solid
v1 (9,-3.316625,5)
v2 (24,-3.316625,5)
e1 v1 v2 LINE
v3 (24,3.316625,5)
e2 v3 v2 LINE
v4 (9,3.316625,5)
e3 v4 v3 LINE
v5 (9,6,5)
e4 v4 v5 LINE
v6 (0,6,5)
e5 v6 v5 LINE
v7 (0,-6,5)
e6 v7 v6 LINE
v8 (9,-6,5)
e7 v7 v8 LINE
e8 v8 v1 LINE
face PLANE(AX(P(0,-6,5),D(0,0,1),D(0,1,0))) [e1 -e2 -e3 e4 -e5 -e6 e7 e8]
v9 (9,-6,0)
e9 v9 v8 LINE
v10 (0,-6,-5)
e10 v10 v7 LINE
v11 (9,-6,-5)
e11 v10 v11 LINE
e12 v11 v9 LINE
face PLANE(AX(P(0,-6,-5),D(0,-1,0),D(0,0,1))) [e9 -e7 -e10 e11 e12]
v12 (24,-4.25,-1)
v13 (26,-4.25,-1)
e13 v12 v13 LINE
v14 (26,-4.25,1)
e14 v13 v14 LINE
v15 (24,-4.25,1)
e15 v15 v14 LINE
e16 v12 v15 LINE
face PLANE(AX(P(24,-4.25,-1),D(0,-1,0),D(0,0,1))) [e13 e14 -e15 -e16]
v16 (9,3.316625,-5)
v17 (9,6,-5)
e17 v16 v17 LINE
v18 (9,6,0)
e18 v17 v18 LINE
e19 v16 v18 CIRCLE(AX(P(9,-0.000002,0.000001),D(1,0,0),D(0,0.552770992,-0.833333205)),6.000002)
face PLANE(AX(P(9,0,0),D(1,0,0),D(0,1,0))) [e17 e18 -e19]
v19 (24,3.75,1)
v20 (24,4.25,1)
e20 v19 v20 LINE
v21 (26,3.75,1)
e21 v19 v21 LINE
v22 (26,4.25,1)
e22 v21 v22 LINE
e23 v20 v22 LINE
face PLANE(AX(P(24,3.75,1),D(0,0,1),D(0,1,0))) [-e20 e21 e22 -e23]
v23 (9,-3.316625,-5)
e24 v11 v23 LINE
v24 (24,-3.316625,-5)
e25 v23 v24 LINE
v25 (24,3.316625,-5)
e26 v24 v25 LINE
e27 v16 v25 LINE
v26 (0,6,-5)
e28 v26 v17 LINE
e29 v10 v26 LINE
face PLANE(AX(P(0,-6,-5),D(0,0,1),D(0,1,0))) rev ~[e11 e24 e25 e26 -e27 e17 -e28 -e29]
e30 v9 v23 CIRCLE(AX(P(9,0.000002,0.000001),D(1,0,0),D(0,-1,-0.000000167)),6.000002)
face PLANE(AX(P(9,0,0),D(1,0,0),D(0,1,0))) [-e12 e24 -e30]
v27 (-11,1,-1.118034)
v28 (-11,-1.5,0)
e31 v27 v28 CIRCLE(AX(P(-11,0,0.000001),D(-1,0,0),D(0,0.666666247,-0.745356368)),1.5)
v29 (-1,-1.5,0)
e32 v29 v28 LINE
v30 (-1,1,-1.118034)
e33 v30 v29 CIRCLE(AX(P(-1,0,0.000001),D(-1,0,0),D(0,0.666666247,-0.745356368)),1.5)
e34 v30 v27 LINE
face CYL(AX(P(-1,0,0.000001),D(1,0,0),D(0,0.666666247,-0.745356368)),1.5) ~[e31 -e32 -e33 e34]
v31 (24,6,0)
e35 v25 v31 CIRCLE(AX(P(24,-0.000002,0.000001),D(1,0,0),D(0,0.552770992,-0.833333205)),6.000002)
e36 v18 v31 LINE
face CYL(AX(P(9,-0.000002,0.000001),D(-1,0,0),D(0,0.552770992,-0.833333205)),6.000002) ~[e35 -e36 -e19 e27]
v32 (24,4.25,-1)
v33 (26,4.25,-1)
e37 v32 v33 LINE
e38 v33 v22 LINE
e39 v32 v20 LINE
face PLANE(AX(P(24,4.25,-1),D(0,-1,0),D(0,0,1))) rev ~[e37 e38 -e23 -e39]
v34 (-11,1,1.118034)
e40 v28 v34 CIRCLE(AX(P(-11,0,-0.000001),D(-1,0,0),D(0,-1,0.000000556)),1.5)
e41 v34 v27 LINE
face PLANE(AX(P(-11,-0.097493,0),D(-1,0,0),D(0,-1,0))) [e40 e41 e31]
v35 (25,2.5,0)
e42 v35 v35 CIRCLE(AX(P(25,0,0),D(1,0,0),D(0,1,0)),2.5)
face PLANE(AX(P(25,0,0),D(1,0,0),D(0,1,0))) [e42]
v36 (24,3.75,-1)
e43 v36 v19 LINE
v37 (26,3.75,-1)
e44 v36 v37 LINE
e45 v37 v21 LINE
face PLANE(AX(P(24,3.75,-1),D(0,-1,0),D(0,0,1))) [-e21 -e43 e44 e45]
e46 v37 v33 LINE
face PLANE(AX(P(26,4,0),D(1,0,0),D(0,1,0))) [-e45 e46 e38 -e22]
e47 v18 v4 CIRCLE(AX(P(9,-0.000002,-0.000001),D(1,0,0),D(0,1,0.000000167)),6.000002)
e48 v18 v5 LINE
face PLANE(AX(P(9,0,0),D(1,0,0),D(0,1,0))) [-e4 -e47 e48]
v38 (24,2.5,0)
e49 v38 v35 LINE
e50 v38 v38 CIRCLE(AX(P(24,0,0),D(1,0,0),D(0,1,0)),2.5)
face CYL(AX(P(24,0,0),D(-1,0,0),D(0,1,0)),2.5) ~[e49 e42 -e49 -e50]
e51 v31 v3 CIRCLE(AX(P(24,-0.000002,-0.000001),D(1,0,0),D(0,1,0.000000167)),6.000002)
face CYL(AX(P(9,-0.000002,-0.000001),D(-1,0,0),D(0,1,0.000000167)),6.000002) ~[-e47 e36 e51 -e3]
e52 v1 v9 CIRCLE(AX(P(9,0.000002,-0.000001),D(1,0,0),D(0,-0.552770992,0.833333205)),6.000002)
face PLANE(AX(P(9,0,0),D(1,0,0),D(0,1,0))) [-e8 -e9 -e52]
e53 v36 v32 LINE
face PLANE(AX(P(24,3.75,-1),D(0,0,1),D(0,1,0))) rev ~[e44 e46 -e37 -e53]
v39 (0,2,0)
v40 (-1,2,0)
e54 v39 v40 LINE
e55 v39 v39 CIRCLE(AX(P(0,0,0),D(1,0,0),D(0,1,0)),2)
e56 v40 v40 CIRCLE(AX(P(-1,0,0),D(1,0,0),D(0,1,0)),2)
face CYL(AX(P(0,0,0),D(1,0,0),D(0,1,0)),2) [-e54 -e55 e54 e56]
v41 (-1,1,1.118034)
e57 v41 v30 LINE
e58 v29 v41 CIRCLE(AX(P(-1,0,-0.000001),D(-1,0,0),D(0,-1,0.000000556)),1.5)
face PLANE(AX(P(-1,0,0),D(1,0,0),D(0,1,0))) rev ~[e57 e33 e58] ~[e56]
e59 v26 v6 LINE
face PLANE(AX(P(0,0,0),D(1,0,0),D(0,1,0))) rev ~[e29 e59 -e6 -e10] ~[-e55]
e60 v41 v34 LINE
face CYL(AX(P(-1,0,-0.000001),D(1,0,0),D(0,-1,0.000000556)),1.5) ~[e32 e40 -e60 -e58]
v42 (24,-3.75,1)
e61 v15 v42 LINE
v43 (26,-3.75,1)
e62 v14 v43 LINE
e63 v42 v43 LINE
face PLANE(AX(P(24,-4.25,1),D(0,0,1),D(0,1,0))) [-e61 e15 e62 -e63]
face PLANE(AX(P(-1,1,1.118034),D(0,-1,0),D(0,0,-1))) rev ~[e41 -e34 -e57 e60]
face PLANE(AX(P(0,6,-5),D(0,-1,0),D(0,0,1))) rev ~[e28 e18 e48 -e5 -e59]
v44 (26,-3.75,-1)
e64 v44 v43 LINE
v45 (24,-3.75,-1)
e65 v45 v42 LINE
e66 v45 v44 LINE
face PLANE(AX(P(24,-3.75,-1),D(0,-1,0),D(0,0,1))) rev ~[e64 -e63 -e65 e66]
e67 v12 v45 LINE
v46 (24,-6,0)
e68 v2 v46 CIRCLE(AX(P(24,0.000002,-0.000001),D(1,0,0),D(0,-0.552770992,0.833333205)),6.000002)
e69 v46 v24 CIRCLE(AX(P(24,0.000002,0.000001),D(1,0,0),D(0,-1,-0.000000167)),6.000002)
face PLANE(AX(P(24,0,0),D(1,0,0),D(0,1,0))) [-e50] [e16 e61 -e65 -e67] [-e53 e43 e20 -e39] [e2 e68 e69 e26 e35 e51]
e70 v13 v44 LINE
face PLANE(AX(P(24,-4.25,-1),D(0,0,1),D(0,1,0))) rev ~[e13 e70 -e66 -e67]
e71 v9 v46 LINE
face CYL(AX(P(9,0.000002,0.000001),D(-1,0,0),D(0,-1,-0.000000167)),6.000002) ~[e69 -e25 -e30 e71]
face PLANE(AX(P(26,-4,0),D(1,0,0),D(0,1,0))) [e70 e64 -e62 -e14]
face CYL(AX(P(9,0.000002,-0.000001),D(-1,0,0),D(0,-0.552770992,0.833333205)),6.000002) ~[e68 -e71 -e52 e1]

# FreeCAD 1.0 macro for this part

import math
import FreeCAD as App
import Part
import Sketcher
Q = App.Units.Quantity


def add_polygon(sketch, points):
    """Adds a closed chain of lines whose ends are joined by coincident constraints."""
    first, n = sketch.GeometryCount, len(points)
    for a, b in zip(points, points[1:] + points[:1]):
        sketch.addGeometry(Part.LineSegment(App.Vector(*a, 0), App.Vector(*b, 0)), False)
    for i in range(n):
        sketch.addConstraint(Sketcher.Constraint("Coincident", first + i, 2, first + (i + 1) % n, 1))

doc = App.newDocument("Part")
params = doc.addObject("Spreadsheet::Sheet", "Params")
for row, (alias, value) in enumerate([
    ("sketch1_width", "12 mm"),
    ("sketch1_height", "10 mm"),
    ("pad1_length", "9 mm"),
    ("sketch2_diameter", "4 mm"),
    ("pad2_length", "1 mm"),
    ("sketch3_radius", "1.5 mm"),
    ("pad3_length", "10 mm"),
    ("pad4_length", "15 mm"),
    ("sketch5_diameter", "5 mm"),
    ("pad5_length", "1 mm"),
    ("sketch6_height", "2 mm"),
    ("sketch6_width", "0.5 mm"),
    ("pad6_length", "2 mm"),
], start=1):
    params.set(f"A{row}", alias)
    params.set(f"B{row}", "=" + value)
    params.setAlias(f"B{row}", alias)

body = doc.addObject("PartDesign::Body", "Body")

# Sketch on YZ plane
sketch1 = doc.addObject("Sketcher::SketchObject", "Sketch")
body.addObject(sketch1)
sketch1.AttachmentSupport = (doc.YZ_Plane, [""])
sketch1.MapMode = "FlatFace"
add_polygon(sketch1, [(-6, 5), (-6, -5), (6, -5), (6, 5)])  # lines 0-3
sketch1.addConstraint([
    Sketcher.Constraint("Vertical", 0),
    Sketcher.Constraint("Horizontal", 1),
    Sketcher.Constraint("Vertical", 2),
    Sketcher.Constraint("Horizontal", 3),
    Sketcher.Constraint("Symmetric", 0, 2, 2, 2, -1, 1),
    Sketcher.Constraint("DistanceX", 1, 1, 1, 2, Q("12 mm")),
    Sketcher.Constraint("DistanceY", 0, 2, 0, 1, Q("10 mm")),
])
sketch1.setExpression("Constraints[9]", "Params.sketch1_width")
sketch1.setExpression("Constraints[10]", "Params.sketch1_height")
pad1 = doc.addObject("PartDesign::Pad", "Pad")
body.addObject(pad1)
pad1.Profile = sketch1
pad1.setExpression("Length", "Params.pad1_length")

# Sketch on YZ plane
sketch2 = doc.addObject("Sketcher::SketchObject", "Sketch001")
body.addObject(sketch2)
sketch2.AttachmentSupport = (doc.YZ_Plane, [""])
sketch2.MapMode = "FlatFace"
sketch2.addGeometry(Part.Circle(App.Vector(0, 0, 0), App.Vector(0, 0, 1), 2), False)
sketch2.addConstraint([
    Sketcher.Constraint("Coincident", 0, 3, -1, 1),
    Sketcher.Constraint("Diameter", 0, Q("4 mm")),
])
sketch2.setExpression("Constraints[1]", "Params.sketch2_diameter")
pad2 = doc.addObject("PartDesign::Pad", "Pad001")
body.addObject(pad2)
pad2.Profile = sketch2
pad2.setExpression("Length", "Params.pad2_length")
pad2.Reversed = True

# Sketch on YZ plane
sketch3 = doc.addObject("Sketcher::SketchObject", "Sketch002")
body.addObject(sketch3)
sketch3.AttachmentSupport = (doc.YZ_Plane, [""])
sketch3.MapMode = "FlatFace"
sketch3.AttachmentOffset = App.Placement(App.Vector(0, 0, -1), App.Rotation())
sketch3.addGeometry([
    Part.ArcOfCircle(Part.Circle(App.Vector(0, 0.000001, 0), App.Vector(0, 0, 1), 1.5), math.radians(-179.999968), math.radians(-48.189717)),
    Part.ArcOfCircle(Part.Circle(App.Vector(0, -0.000001, 0), App.Vector(0, 0, 1), 1.5), math.radians(48.189717), math.radians(179.999968)),
    Part.LineSegment(App.Vector(1, 1.118034, 0), App.Vector(1, -1.118034, 0)),
], False)
sketch3.addConstraint([
    Sketcher.Constraint("Tangent", 0, 1, 1, 2),
    Sketcher.Constraint("Coincident", 1, 1, 2, 1),
    Sketcher.Constraint("Coincident", 2, 2, 0, 2),
    Sketcher.Constraint("Vertical", 2),
    Sketcher.Constraint("Coincident", 0, 3, -1, 1),
    Sketcher.Constraint("Equal", 0, 1),
    Sketcher.Constraint("PointOnObject", 0, 1, -1),
    Sketcher.Constraint("Radius", 0, Q("1.5 mm")),
    Sketcher.Constraint("DistanceX", -1, 1, 1, 1, Q("1 mm")),
])
sketch3.setExpression("Constraints[7]", "Params.sketch3_radius")
pad3 = doc.addObject("PartDesign::Pad", "Pad002")
body.addObject(pad3)
pad3.Profile = sketch3
pad3.setExpression("Length", "Params.pad3_length")
pad3.Reversed = True

# Sketch on YZ plane
sketch4 = doc.addObject("Sketcher::SketchObject", "Sketch003")
body.addObject(sketch4)
sketch4.AttachmentSupport = (doc.YZ_Plane, [""])
sketch4.MapMode = "FlatFace"
sketch4.AttachmentOffset = App.Placement(App.Vector(0, 0, 9), App.Rotation())
sketch4.addGeometry([
    Part.LineSegment(App.Vector(3.316625, 5, 0), App.Vector(-3.316625, 5, 0)),  # 0
    Part.ArcOfCircle(Part.Circle(App.Vector(0.000002, -0.000001, 0), App.Vector(0, 0, 1), 6.000002), math.radians(123.557323), math.radians(179.99999)),  # 1
    Part.ArcOfCircle(Part.Circle(App.Vector(0.000002, 0.000001, 0), App.Vector(0, 0, 1), 6.000002), math.radians(-179.99999), math.radians(-123.557323)),  # 2
    Part.LineSegment(App.Vector(-3.316625, -5, 0), App.Vector(3.316625, -5, 0)),  # 3
    Part.ArcOfCircle(Part.Circle(App.Vector(-0.000002, 0.000001, 0), App.Vector(0, 0, 1), 6.000002), math.radians(-56.442677), math.radians(-0.00001)),  # 4
    Part.ArcOfCircle(Part.Circle(App.Vector(-0.000002, -0.000001, 0), App.Vector(0, 0, 1), 6.000002), math.radians(0.00001), math.radians(56.442677)),  # 5
], False)
sketch4.addConstraint([
    Sketcher.Constraint("Coincident", 0, 2, 1, 1),
    Sketcher.Constraint("Tangent", 1, 2, 2, 1),
    Sketcher.Constraint("Coincident", 2, 2, 3, 1),
    Sketcher.Constraint("Coincident", 3, 2, 4, 1),
    Sketcher.Constraint("Tangent", 4, 2, 5, 1),
    Sketcher.Constraint("Coincident", 5, 2, 0, 1),
    Sketcher.Constraint("Horizontal", 0),
    Sketcher.Constraint("Horizontal", 3),
    Sketcher.Constraint("Coincident", 1, 3, -1, 1),
    Sketcher.Constraint("Coincident", 4, 3, -1, 1),
    Sketcher.Constraint("Equal", 1, 2),
    Sketcher.Constraint("Equal", 2, 4),
    Sketcher.Constraint("Equal", 4, 5),
    Sketcher.Constraint("PointOnObject", 1, 2, -1),
    Sketcher.Constraint("PointOnObject", 4, 2, -1),
    Sketcher.Constraint("Vertical", 0, 2, 2, 2),
    Sketcher.Constraint("DistanceY", -1, 1, 0, 2, Q("5 mm")),
    Sketcher.Constraint("DistanceX", 1, 2, -1, 1, Q("6 mm")),
])
pad4 = doc.addObject("PartDesign::Pad", "Pad003")
body.addObject(pad4)
pad4.Profile = sketch4
pad4.setExpression("Length", "Params.pad4_length")

# Sketch on YZ plane
sketch5 = doc.addObject("Sketcher::SketchObject", "Sketch004")
body.addObject(sketch5)
sketch5.AttachmentSupport = (doc.YZ_Plane, [""])
sketch5.MapMode = "FlatFace"
sketch5.AttachmentOffset = App.Placement(App.Vector(0, 0, 24), App.Rotation())
sketch5.addGeometry(Part.Circle(App.Vector(0, 0, 0), App.Vector(0, 0, 1), 2.5), False)
sketch5.addConstraint([
    Sketcher.Constraint("Coincident", 0, 3, -1, 1),
    Sketcher.Constraint("Diameter", 0, Q("5 mm")),
])
sketch5.setExpression("Constraints[1]", "Params.sketch5_diameter")
pad5 = doc.addObject("PartDesign::Pad", "Pad004")
body.addObject(pad5)
pad5.Profile = sketch5
pad5.setExpression("Length", "Params.pad5_length")

# Sketch on YZ plane
sketch6 = doc.addObject("Sketcher::SketchObject", "Sketch005")
body.addObject(sketch6)
sketch6.AttachmentSupport = (doc.YZ_Plane, [""])
sketch6.MapMode = "FlatFace"
sketch6.AttachmentOffset = App.Placement(App.Vector(0, 0, 24), App.Rotation())
add_polygon(sketch6, [(-4.25, 1), (-4.25, -1), (-3.75, -1), (-3.75, 1)])  # lines 0-3
add_polygon(sketch6, [(3.75, 1), (3.75, -1), (4.25, -1), (4.25, 1)])  # lines 4-7
sketch6.addConstraint([
    Sketcher.Constraint("Vertical", 0),
    Sketcher.Constraint("Horizontal", 1),
    Sketcher.Constraint("Vertical", 2),
    Sketcher.Constraint("Horizontal", 3),
    Sketcher.Constraint("Vertical", 4),
    Sketcher.Constraint("Horizontal", 5),
    Sketcher.Constraint("Vertical", 6),
    Sketcher.Constraint("Horizontal", 7),
    Sketcher.Constraint("Symmetric", 2, 2, 4, 2, -1, 1),
    Sketcher.Constraint("Symmetric", 0, 2, 6, 2, -1, 1),
    Sketcher.Constraint("Horizontal", 1, 2, 4, 2),
    Sketcher.Constraint("DistanceY", 0, 2, 0, 1, Q("2 mm")),
    Sketcher.Constraint("DistanceX", 1, 1, 1, 2, Q("0.5 mm")),
    Sketcher.Constraint("DistanceX", 0, 2, 4, 2, Q("8 mm")),
])
sketch6.setExpression("Constraints[19]", "Params.sketch6_height")
sketch6.setExpression("Constraints[20]", "Params.sketch6_width")
pad6 = doc.addObject("PartDesign::Pad", "Pad005")
body.addObject(pad6)
pad6.Profile = sketch6
pad6.setExpression("Length", "Params.pad6_length")

doc.recompute()
